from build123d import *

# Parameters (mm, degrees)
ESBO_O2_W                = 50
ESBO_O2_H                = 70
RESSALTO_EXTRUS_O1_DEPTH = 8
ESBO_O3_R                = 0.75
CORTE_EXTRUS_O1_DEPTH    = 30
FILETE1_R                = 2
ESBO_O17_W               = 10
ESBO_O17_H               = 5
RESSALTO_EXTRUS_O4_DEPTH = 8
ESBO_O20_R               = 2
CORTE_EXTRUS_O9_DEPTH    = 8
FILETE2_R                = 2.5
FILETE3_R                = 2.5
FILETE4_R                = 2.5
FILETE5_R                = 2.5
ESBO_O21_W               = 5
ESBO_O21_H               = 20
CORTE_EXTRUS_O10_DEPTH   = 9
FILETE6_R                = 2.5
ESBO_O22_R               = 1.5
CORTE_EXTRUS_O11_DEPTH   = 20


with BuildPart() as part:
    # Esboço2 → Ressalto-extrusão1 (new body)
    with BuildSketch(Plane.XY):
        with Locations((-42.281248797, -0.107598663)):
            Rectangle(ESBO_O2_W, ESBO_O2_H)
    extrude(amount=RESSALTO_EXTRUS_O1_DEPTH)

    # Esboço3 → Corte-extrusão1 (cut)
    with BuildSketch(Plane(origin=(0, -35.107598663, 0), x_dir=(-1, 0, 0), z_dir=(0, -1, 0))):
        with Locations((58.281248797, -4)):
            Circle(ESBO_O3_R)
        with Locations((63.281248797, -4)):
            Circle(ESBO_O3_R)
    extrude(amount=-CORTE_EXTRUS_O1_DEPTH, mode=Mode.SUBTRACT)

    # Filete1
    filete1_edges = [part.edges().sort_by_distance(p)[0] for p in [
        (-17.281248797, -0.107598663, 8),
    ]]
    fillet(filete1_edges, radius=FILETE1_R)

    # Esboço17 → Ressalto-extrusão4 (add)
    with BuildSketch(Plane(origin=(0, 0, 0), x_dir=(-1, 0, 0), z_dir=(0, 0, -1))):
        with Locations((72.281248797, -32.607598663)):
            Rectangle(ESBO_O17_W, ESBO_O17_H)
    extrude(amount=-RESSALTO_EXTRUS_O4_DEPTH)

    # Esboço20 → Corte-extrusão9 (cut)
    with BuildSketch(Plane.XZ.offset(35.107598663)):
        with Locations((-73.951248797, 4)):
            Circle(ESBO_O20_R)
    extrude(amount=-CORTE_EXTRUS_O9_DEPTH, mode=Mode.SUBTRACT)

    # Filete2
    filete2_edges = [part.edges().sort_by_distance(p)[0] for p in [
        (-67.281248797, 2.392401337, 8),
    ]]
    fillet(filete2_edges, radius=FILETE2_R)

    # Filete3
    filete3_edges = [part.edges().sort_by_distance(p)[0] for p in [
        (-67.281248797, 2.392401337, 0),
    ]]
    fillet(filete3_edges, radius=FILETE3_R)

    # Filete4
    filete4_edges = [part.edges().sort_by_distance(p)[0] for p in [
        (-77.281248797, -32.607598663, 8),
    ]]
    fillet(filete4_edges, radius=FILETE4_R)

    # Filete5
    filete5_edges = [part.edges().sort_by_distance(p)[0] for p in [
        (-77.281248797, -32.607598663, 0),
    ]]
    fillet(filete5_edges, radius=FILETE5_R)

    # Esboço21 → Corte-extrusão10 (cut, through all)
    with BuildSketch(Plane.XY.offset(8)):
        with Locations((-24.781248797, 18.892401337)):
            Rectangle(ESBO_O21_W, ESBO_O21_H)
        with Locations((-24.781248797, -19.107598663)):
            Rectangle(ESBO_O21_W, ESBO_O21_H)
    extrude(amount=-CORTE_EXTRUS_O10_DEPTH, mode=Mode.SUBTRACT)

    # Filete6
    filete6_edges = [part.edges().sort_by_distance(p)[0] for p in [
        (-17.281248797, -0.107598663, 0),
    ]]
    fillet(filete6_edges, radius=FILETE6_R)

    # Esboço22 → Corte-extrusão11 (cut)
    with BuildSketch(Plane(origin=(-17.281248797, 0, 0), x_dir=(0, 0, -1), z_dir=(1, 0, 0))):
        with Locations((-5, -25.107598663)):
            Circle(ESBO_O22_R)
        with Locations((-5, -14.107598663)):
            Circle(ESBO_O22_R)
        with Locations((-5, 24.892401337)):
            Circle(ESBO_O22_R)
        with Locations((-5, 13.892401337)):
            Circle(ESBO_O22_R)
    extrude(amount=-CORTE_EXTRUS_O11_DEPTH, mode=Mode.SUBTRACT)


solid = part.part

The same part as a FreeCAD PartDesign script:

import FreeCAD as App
import Part
import Sketcher
Q = App.Units.Quantity


def edges_at(feature, points):
    """Names of the edges that pass closest to the given points."""
    edges = feature.Shape.Edges
    near = lambda p: min(range(len(edges)), key=lambda i: edges[i].distToShape(Part.Vertex(*p))[0])
    return sorted({f"Edge{near(p) + 1}" for p in points})


def add_polygon(sketch, points):
    """Adds a closed chain of lines whose ends are joined by coincident constraints."""
    first, n = sketch.GeometryCount, len(points)
    for a, b in zip(points, points[1:] + points[:1]):
        sketch.addGeometry(Part.LineSegment(App.Vector(*a, 0), App.Vector(*b, 0)), False)
    for i in range(n):
        sketch.addConstraint(Sketcher.Constraint("Coincident", first + i, 2, first + (i + 1) % n, 1))

doc = App.newDocument("Part")
body = doc.addObject("PartDesign::Body", "Body")

# Sketch on XY plane
sketch1 = doc.addObject("Sketcher::SketchObject", "Sketch")
body.addObject(sketch1)
sketch1.AttachmentSupport = (doc.XY_Plane, [""])
sketch1.MapMode = "FlatFace"
add_polygon(sketch1, [(-67.281249, 34.892401), (-67.281249, -35.107599), (-17.281249, -35.107599), (-17.281249, 34.892401)])  # lines 0-3
sketch1.addConstraint([
    Sketcher.Constraint("Vertical", 0),
    Sketcher.Constraint("Horizontal", 1),
    Sketcher.Constraint("Vertical", 2),
    Sketcher.Constraint("Horizontal", 3),
    Sketcher.Constraint("DistanceX", 1, 1, 1, 2, Q("50 mm")),
    Sketcher.Constraint("DistanceY", 0, 2, 0, 1, Q("70 mm")),
    Sketcher.Constraint("DistanceY", 0, 2, -1, 1, Q("35.107599 mm")),
    Sketcher.Constraint("DistanceX", 0, 2, -1, 1, Q("67.281249 mm")),
])
pad1 = doc.addObject("PartDesign::Pad", "Pad")
body.addObject(pad1)
pad1.Profile = sketch1
pad1.Length = 8

# Sketch on XZ plane
sketch2 = doc.addObject("Sketcher::SketchObject", "Sketch001")
body.addObject(sketch2)
sketch2.AttachmentSupport = (doc.XZ_Plane, [""])
sketch2.MapMode = "FlatFace"
sketch2.AttachmentOffset = App.Placement(App.Vector(0, 0, 35.107599), App.Rotation())
sketch2.addGeometry([
    Part.Circle(App.Vector(-58.281249, 4, 0), App.Vector(0, 0, 1), 0.75),
    Part.Circle(App.Vector(-63.281249, 4, 0), App.Vector(0, 0, 1), 0.75),
], False)
sketch2.addConstraint([
    Sketcher.Constraint("Equal", 0, 1),
    Sketcher.Constraint("Horizontal", 0, 3, 1, 3),
    Sketcher.Constraint("Diameter", 0, Q("1.5 mm")),
    Sketcher.Constraint("DistanceY", -1, 1, 0, 3, Q("4 mm")),
    Sketcher.Constraint("DistanceX", 1, 3, 0, 3, Q("5 mm")),
    Sketcher.Constraint("DistanceX", 0, 3, -1, 1, Q("58.281249 mm")),
])
pocket1 = doc.addObject("PartDesign::Pocket", "Pocket")
body.addObject(pocket1)
pocket1.Profile = sketch2
pocket1.Length = 30
doc.recompute()

fillet = doc.addObject("PartDesign::Fillet", "Fillet")
body.addObject(fillet)
fillet.Base = (pocket1, edges_at(pocket1, [(-17.281, -0.108, 8)]))
fillet.Radius = 2

# Sketch on XY plane
sketch3 = doc.addObject("Sketcher::SketchObject", "Sketch002")
body.addObject(sketch3)
sketch3.AttachmentSupport = (doc.XY_Plane, [""])
sketch3.MapMode = "FlatFace"
add_polygon(sketch3, [(-67.281249, -30.107599), (-67.281249, -35.107599), (-77.281249, -35.107599), (-77.281249, -30.107599)])  # lines 0-3
sketch3.addConstraint([
    Sketcher.Constraint("Vertical", 0),
    Sketcher.Constraint("Horizontal", 1),
    Sketcher.Constraint("Vertical", 2),
    Sketcher.Constraint("Horizontal", 3),
    Sketcher.Constraint("DistanceX", 1, 2, 1, 1, Q("10 mm")),
    Sketcher.Constraint("DistanceY", 0, 2, 0, 1, Q("5 mm")),
    Sketcher.Constraint("DistanceY", 0, 2, -1, 1, Q("35.107599 mm")),
    Sketcher.Constraint("DistanceX", 0, 2, -1, 1, Q("67.281249 mm")),
])
pad2 = doc.addObject("PartDesign::Pad", "Pad001")
body.addObject(pad2)
pad2.Profile = sketch3
pad2.Length = 8

# Sketch on XZ plane
sketch4 = doc.addObject("Sketcher::SketchObject", "Sketch003")
body.addObject(sketch4)
sketch4.AttachmentSupport = (doc.XZ_Plane, [""])
sketch4.MapMode = "FlatFace"
sketch4.AttachmentOffset = App.Placement(App.Vector(0, 0, 35.107599), App.Rotation())
sketch4.addGeometry(Part.Circle(App.Vector(-73.951249, 4, 0), App.Vector(0, 0, 1), 2), False)
sketch4.addConstraint([
    Sketcher.Constraint("Diameter", 0, Q("4 mm")),
    Sketcher.Constraint("DistanceY", -1, 1, 0, 3, Q("4 mm")),
    Sketcher.Constraint("DistanceX", 0, 3, -1, 1, Q("73.951249 mm")),
])
pocket2 = doc.addObject("PartDesign::Pocket", "Pocket001")
body.addObject(pocket2)
pocket2.Profile = sketch4
pocket2.Length = 8
doc.recompute()

fillet2 = doc.addObject("PartDesign::Fillet", "Fillet001")
body.addObject(fillet2)
fillet2.Base = (pocket2, edges_at(pocket2, [(-67.281, 2.392, 8)]))
fillet2.Radius = 2.5
doc.recompute()

fillet3 = doc.addObject("PartDesign::Fillet", "Fillet002")
body.addObject(fillet3)
fillet3.Base = (fillet2, edges_at(fillet2, [(-67.281, 2.392, 0)]))
fillet3.Radius = 2.5
doc.recompute()

fillet4 = doc.addObject("PartDesign::Fillet", "Fillet003")
body.addObject(fillet4)
fillet4.Base = (fillet3, edges_at(fillet3, [(-77.281, -32.608, 8)]))
fillet4.Radius = 2.5
doc.recompute()

fillet5 = doc.addObject("PartDesign::Fillet", "Fillet004")
body.addObject(fillet5)
fillet5.Base = (fillet4, edges_at(fillet4, [(-77.281, -32.608, 0)]))
fillet5.Radius = 2.5

# Sketch on XY plane
sketch5 = doc.addObject("Sketcher::SketchObject", "Sketch004")
body.addObject(sketch5)
sketch5.AttachmentSupport = (doc.XY_Plane, [""])
sketch5.MapMode = "FlatFace"
sketch5.AttachmentOffset = App.Placement(App.Vector(0, 0, 8), App.Rotation())
add_polygon(sketch5, [(-27.281249, 28.892401), (-27.281249, 8.892401), (-22.281249, 8.892401), (-22.281249, 28.892401)])  # lines 0-3
add_polygon(sketch5, [(-27.281249, -9.107599), (-27.281249, -29.107599), (-22.281249, -29.107599), (-22.281249, -9.107599)])  # lines 4-7
sketch5.addConstraint([
    Sketcher.Constraint("Vertical", 0),
    Sketcher.Constraint("Horizontal", 1),
    Sketcher.Constraint("Vertical", 2),
    Sketcher.Constraint("Horizontal", 3),
    Sketcher.Constraint("Vertical", 4),
    Sketcher.Constraint("Horizontal", 5),
    Sketcher.Constraint("Vertical", 6),
    Sketcher.Constraint("Horizontal", 7),
    Sketcher.Constraint("Vertical", 3, 2, 4, 2),
    Sketcher.Constraint("Vertical", 2, 2, 5, 2),
    Sketcher.Constraint("Equal", 2, 4),
    Sketcher.Constraint("DistanceX", 1, 1, 1, 2, Q("5 mm")),
    Sketcher.Constraint("DistanceY", 0, 2, 0, 1, Q("20 mm")),
    Sketcher.Constraint("DistanceY", 4, 2, 0, 2, Q("38 mm")),
    Sketcher.Constraint("DistanceY", -1, 1, 0, 2, Q("8.892401 mm")),
    Sketcher.Constraint("DistanceX", 0, 2, -1, 1, Q("27.281249 mm")),
])
pocket3 = doc.addObject("PartDesign::Pocket", "Pocket002")
body.addObject(pocket3)
pocket3.Profile = sketch5
pocket3.Type = "ThroughAll"
doc.recompute()

fillet6 = doc.addObject("PartDesign::Fillet", "Fillet005")
body.addObject(fillet6)
fillet6.Base = (pocket3, edges_at(pocket3, [(-17.281, -0.108, 0)]))
fillet6.Radius = 2.5

# Sketch on YZ plane
sketch6 = doc.addObject("Sketcher::SketchObject", "Sketch005")
body.addObject(sketch6)
sketch6.AttachmentSupport = (doc.YZ_Plane, [""])
sketch6.MapMode = "FlatFace"
sketch6.AttachmentOffset = App.Placement(App.Vector(0, 0, -17.281249), App.Rotation())
sketch6.addGeometry([
    Part.Circle(App.Vector(-25.107599, 5, 0), App.Vector(0, 0, 1), 1.5),
    Part.Circle(App.Vector(-14.107599, 5, 0), App.Vector(0, 0, 1), 1.5),
    Part.Circle(App.Vector(24.892401, 5, 0), App.Vector(0, 0, 1), 1.5),
    Part.Circle(App.Vector(13.892401, 5, 0), App.Vector(0, 0, 1), 1.5),
], False)
sketch6.addConstraint([
    Sketcher.Constraint("Equal", 0, 1),
    Sketcher.Constraint("Equal", 1, 2),
    Sketcher.Constraint("Equal", 2, 3),
    Sketcher.Constraint("Horizontal", 0, 3, 1, 3),
    Sketcher.Constraint("Horizontal", 1, 3, 2, 3),
    Sketcher.Constraint("Horizontal", 2, 3, 3, 3),
    Sketcher.Constraint("Diameter", 0, Q("3 mm")),
    Sketcher.Constraint("DistanceY", -1, 1, 0, 3, Q("5 mm")),
    Sketcher.Constraint("DistanceX", 0, 3, 1, 3, Q("11 mm")),
    Sketcher.Constraint("DistanceX", 1, 3, 2, 3, Q("39 mm")),
    Sketcher.Constraint("DistanceX", 3, 3, 2, 3, Q("11 mm")),
    Sketcher.Constraint("DistanceX", 0, 3, -1, 1, Q("25.107599 mm")),
])
pocket4 = doc.addObject("PartDesign::Pocket", "Pocket003")
body.addObject(pocket4)
pocket4.Profile = sketch6
pocket4.Length = 20

doc.recompute()
